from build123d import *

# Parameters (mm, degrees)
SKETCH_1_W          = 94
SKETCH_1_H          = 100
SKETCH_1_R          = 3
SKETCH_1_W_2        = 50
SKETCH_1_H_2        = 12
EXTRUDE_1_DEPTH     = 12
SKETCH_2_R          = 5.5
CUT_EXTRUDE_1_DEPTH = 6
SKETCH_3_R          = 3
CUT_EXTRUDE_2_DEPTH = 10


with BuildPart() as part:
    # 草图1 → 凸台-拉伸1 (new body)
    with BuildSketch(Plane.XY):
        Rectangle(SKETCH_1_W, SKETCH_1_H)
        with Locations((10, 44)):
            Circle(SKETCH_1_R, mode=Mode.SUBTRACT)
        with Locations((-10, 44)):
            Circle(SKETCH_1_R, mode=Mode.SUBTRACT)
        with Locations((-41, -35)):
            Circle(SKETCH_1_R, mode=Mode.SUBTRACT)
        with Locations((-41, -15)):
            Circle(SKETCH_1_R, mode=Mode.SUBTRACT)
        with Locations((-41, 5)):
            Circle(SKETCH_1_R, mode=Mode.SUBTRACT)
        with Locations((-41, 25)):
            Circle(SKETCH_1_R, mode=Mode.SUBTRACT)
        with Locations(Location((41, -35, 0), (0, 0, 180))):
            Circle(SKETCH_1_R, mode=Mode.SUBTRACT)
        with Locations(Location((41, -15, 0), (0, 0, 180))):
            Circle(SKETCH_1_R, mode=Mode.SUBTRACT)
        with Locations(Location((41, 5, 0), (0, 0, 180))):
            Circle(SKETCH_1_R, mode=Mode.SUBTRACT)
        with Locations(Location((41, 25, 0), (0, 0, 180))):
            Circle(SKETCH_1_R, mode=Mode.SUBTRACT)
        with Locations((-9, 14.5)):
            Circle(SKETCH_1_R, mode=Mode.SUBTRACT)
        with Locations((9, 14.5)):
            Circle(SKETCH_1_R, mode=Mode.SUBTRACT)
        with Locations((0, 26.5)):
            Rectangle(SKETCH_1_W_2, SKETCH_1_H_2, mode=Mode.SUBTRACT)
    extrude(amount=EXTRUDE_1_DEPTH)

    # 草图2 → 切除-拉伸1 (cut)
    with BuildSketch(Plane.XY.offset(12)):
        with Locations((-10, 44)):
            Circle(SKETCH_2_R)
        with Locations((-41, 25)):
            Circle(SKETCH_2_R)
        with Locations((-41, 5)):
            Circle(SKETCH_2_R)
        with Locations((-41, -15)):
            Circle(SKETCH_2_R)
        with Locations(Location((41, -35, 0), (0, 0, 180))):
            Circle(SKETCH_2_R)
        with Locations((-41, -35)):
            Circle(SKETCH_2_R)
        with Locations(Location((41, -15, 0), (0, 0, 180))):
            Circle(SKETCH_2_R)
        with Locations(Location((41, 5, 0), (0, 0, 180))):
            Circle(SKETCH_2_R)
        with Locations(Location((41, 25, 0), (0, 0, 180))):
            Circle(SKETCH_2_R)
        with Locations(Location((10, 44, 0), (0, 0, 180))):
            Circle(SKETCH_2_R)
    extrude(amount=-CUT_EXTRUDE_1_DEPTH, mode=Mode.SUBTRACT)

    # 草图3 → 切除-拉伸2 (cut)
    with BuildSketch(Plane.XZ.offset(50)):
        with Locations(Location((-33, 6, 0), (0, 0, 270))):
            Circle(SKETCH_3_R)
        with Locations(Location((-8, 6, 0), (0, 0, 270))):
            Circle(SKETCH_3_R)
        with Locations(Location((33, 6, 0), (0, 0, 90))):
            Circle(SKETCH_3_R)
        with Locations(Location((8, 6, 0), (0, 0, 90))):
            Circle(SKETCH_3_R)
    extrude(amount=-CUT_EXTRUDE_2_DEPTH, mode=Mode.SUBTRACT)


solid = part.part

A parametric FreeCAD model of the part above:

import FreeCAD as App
import Part
import Sketcher
from FreeCAD import Vector
Q = App.Units.Quantity


def add_polygon(sketch, points):
    """Adds a closed chain of lines whose ends are joined by coincident constraints."""
    first, n = sketch.GeometryCount, len(points)
    for a, b in zip(points, points[1:] + points[:1]):
        sketch.addGeometry(Part.LineSegment(App.Vector(*a, 0), App.Vector(*b, 0)), False)
    for i in range(n):
        sketch.addConstraint(Sketcher.Constraint("Coincident", first + i, 2, first + (i + 1) % n, 1))

doc = App.newDocument("Part")
body = doc.addObject("PartDesign::Body", "Body")

sketch1 = body.newObject("Sketcher::SketchObject", "Sketch")
sketch1.AttachmentSupport = (doc.getObject("XY_Plane"), [""])
sketch1.MapMode = "FlatFace"
add_polygon(sketch1, [(-47, 50), (-47, -50), (47, -50), (47, 50)])
sketch1.addGeometry(Part.Circle(Vector(-41, -35, 0), Vector(0, 0, 1), 3), False)
sketch1.addGeometry(Part.Circle(Vector(-41, -15, 0), Vector(0, 0, 1), 3), False)
sketch1.addGeometry(Part.Circle(Vector(41, -35, 0), Vector(0, 0, 1), 3), False)
sketch1.addGeometry(Part.Circle(Vector(41, -15, 0), Vector(0, 0, 1), 3), False)
sketch1.addGeometry(Part.Circle(Vector(-41, 5, 0), Vector(0, 0, 1), 3), False)
sketch1.addGeometry(Part.Circle(Vector(-41, 25, 0), Vector(0, 0, 1), 3), False)
sketch1.addGeometry(Part.Circle(Vector(-9, 14.5, 0), Vector(0, 0, 1), 3), False)
sketch1.addGeometry(Part.Circle(Vector(-10, 44, 0), Vector(0, 0, 1), 3), False)
sketch1.addGeometry(Part.Circle(Vector(9, 14.5, 0), Vector(0, 0, 1), 3), False)
sketch1.addGeometry(Part.Circle(Vector(41, 5, 0), Vector(0, 0, 1), 3), False)
sketch1.addGeometry(Part.Circle(Vector(41, 25, 0), Vector(0, 0, 1), 3), False)
add_polygon(sketch1, [(25, 20.5), (-25, 20.5), (-25, 32.5), (25, 32.5)])
sketch1.addGeometry(Part.Circle(Vector(10, 44, 0), Vector(0, 0, 1), 3), False)
sketch1.addConstraint([
    Sketcher.Constraint("Vertical", 0),
    Sketcher.Constraint("Horizontal", 1),
    Sketcher.Constraint("Vertical", 2),
    Sketcher.Constraint("Horizontal", 3),
    Sketcher.Constraint("Horizontal", 15),
    Sketcher.Constraint("Vertical", 16),
    Sketcher.Constraint("Horizontal", 17),
    Sketcher.Constraint("Vertical", 18),
    Sketcher.Constraint("Equal", 4, 5),
    Sketcher.Constraint("Equal", 5, 6),
    Sketcher.Constraint("Equal", 6, 7),
    Sketcher.Constraint("Equal", 7, 8),
    Sketcher.Constraint("Equal", 8, 9),
    Sketcher.Constraint("Equal", 9, 10),
    Sketcher.Constraint("Equal", 10, 11),
    Sketcher.Constraint("Equal", 11, 12),
    Sketcher.Constraint("Equal", 12, 13),
    Sketcher.Constraint("Equal", 13, 14),
    Sketcher.Constraint("Equal", 14, 19),
    Sketcher.Constraint("Symmetric", 0, 2, 2, 2, -1, 1),
    Sketcher.Constraint("Symmetric", 4, 3, 6, 3, -2),
    Sketcher.Constraint("Symmetric", 5, 3, 7, 3, -2),
    Sketcher.Constraint("Symmetric", 10, 3, 12, 3, -2),
    Sketcher.Constraint("Symmetric", 8, 3, 13, 3, -2),
    Sketcher.Constraint("Symmetric", 9, 3, 14, 3, -2),
    Sketcher.Constraint("Symmetric", 11, 3, 19, 3, -2),
    Sketcher.Constraint("Vertical", 4, 3, 5, 3),
    Sketcher.Constraint("Vertical", 5, 3, 8, 3),
    Sketcher.Constraint("Vertical", 8, 3, 9, 3),
    Sketcher.Constraint("Diameter", 4, Q("6 mm")),
    Sketcher.Constraint("DistanceX", 1, 1, 1, 2, Q("94 mm")),
    Sketcher.Constraint("DistanceX", 15, 2, 15, 1, Q("50 mm")),
    Sketcher.Constraint("DistanceY", 0, 2, 0, 1, Q("100 mm")),
    Sketcher.Constraint("DistanceY", 16, 1, 16, 2, Q("12 mm")),
    Sketcher.Constraint("DistanceX", 4, 3, -1, 1, Q("41 mm")),
    Sketcher.Constraint("DistanceY", 4, 3, -1, 1, Q("35 mm")),
    Sketcher.Constraint("DistanceY", 5, 3, -1, 1, Q("15 mm")),
    Sketcher.Constraint("DistanceY", -1, 1, 8, 3, Q("5 mm")),
    Sketcher.Constraint("DistanceY", -1, 1, 9, 3, Q("25 mm")),
    Sketcher.Constraint("DistanceX", 10, 3, -1, 1, Q("9 mm")),
    Sketcher.Constraint("DistanceX", 11, 3, -1, 1, Q("10 mm")),
    Sketcher.Constraint("DistanceY", -1, 1, 11, 3, Q("44 mm")),
    Sketcher.Constraint("DistanceX", 15, 2, -1, 1, Q("25 mm")),
    Sketcher.Constraint("DistanceY", 10, 3, 15, 2, Q("6 mm")),
    Sketcher.Constraint("DistanceY", -1, 1, 10, 3, Q("14.5 mm")),
])
pad1 = body.newObject("PartDesign::Pad", "Pad")
pad1.Profile = sketch1
pad1.Length = 12

sketch2 = body.newObject("Sketcher::SketchObject", "Sketch001")
sketch2.AttachmentSupport = (doc.getObject("XY_Plane"), [""])
sketch2.MapMode = "FlatFace"
sketch2.AttachmentOffset = App.Placement(Vector(0, 0, 12), App.Rotation())
sketch2.addGeometry([
    Part.Circle(Vector(-10, 44, 0), Vector(0, 0, 1), 6),
    Part.Circle(Vector(-41, 25, 0), Vector(0, 0, 1), 6),
    Part.Circle(Vector(-41, 5, 0), Vector(0, 0, 1), 6),
    Part.Circle(Vector(-41, -15, 0), Vector(0, 0, 1), 6),
    Part.Circle(Vector(41, -35, 0), Vector(0, 0, 1), 6),
    Part.Circle(Vector(-41, -35, 0), Vector(0, 0, 1), 6),
    Part.Circle(Vector(41, -15, 0), Vector(0, 0, 1), 6),
    Part.Circle(Vector(41, 5, 0), Vector(0, 0, 1), 6),
    Part.Circle(Vector(41, 25, 0), Vector(0, 0, 1), 6),
    Part.Circle(Vector(10, 44, 0), Vector(0, 0, 1), 6),
], False)
sketch2.addConstraint([
    Sketcher.Constraint("Equal", 0, 1),
    Sketcher.Constraint("Equal", 1, 2),
    Sketcher.Constraint("Equal", 2, 3),
    Sketcher.Constraint("Equal", 3, 4),
    Sketcher.Constraint("Equal", 4, 5),
    Sketcher.Constraint("Equal", 5, 6),
    Sketcher.Constraint("Equal", 6, 7),
    Sketcher.Constraint("Equal", 7, 8),
    Sketcher.Constraint("Equal", 8, 9),
    Sketcher.Constraint("Symmetric", 4, 3, 5, 3, -2),
    Sketcher.Constraint("Symmetric", 3, 3, 6, 3, -2),
    Sketcher.Constraint("Symmetric", 2, 3, 7, 3, -2),
    Sketcher.Constraint("Symmetric", 1, 3, 8, 3, -2),
    Sketcher.Constraint("Symmetric", 0, 3, 9, 3, -2),
    Sketcher.Constraint("Vertical", 1, 3, 2, 3),
    Sketcher.Constraint("Vertical", 2, 3, 3, 3),
    Sketcher.Constraint("Vertical", 3, 3, 5, 3),
    Sketcher.Constraint("Diameter", 0, Q("11 mm")),
    Sketcher.Constraint("DistanceX", 0, 3, -1, 1, Q("10 mm")),
    Sketcher.Constraint("DistanceY", -1, 1, 0, 3, Q("44 mm")),
    Sketcher.Constraint("DistanceX", 1, 3, -1, 1, Q("41 mm")),
    Sketcher.Constraint("DistanceY", -1, 1, 1, 3, Q("25 mm")),
    Sketcher.Constraint("DistanceY", -1, 1, 2, 3, Q("5 mm")),
    Sketcher.Constraint("DistanceY", 3, 3, -1, 1, Q("15 mm")),
    Sketcher.Constraint("DistanceY", 4, 3, -1, 1, Q("35 mm")),
])
pocket1 = body.newObject("PartDesign::Pocket", "Pocket")
pocket1.Profile = sketch2
pocket1.Length = 6

sketch3 = body.newObject("Sketcher::SketchObject", "Sketch002")
sketch3.AttachmentSupport = (doc.getObject("XZ_Plane"), [""])
sketch3.MapMode = "FlatFace"
sketch3.AttachmentOffset = App.Placement(Vector(0, 0, 50), App.Rotation())
sketch3.addGeometry([
    Part.Circle(Vector(-33, 6, 0), Vector(0, 0, 1), 3),
    Part.Circle(Vector(-8, 6, 0), Vector(0, 0, 1), 3),
    Part.Circle(Vector(33, 6, 0), Vector(0, 0, 1), 3),
    Part.Circle(Vector(8, 6, 0), Vector(0, 0, 1), 3),
], False)
sketch3.addConstraint([
    Sketcher.Constraint("Equal", 0, 1),
    Sketcher.Constraint("Equal", 1, 2),
    Sketcher.Constraint("Equal", 2, 3),
    Sketcher.Constraint("Symmetric", 0, 3, 2, 3, -2),
    Sketcher.Constraint("Symmetric", 1, 3, 3, 3, -2),
    Sketcher.Constraint("Horizontal", 0, 3, 1, 3),
    Sketcher.Constraint("Diameter", 0, Q("6 mm")),
    Sketcher.Constraint("DistanceX", 0, 3, -1, 1, Q("33 mm")),
    Sketcher.Constraint("DistanceY", -1, 1, 0, 3, Q("6 mm")),
    Sketcher.Constraint("DistanceX", 1, 3, -1, 1, Q("8 mm")),
])
pocket2 = body.newObject("PartDesign::Pocket", "Pocket001")
pocket2.Profile = sketch3
pocket2.Length = 10

doc.recompute()
